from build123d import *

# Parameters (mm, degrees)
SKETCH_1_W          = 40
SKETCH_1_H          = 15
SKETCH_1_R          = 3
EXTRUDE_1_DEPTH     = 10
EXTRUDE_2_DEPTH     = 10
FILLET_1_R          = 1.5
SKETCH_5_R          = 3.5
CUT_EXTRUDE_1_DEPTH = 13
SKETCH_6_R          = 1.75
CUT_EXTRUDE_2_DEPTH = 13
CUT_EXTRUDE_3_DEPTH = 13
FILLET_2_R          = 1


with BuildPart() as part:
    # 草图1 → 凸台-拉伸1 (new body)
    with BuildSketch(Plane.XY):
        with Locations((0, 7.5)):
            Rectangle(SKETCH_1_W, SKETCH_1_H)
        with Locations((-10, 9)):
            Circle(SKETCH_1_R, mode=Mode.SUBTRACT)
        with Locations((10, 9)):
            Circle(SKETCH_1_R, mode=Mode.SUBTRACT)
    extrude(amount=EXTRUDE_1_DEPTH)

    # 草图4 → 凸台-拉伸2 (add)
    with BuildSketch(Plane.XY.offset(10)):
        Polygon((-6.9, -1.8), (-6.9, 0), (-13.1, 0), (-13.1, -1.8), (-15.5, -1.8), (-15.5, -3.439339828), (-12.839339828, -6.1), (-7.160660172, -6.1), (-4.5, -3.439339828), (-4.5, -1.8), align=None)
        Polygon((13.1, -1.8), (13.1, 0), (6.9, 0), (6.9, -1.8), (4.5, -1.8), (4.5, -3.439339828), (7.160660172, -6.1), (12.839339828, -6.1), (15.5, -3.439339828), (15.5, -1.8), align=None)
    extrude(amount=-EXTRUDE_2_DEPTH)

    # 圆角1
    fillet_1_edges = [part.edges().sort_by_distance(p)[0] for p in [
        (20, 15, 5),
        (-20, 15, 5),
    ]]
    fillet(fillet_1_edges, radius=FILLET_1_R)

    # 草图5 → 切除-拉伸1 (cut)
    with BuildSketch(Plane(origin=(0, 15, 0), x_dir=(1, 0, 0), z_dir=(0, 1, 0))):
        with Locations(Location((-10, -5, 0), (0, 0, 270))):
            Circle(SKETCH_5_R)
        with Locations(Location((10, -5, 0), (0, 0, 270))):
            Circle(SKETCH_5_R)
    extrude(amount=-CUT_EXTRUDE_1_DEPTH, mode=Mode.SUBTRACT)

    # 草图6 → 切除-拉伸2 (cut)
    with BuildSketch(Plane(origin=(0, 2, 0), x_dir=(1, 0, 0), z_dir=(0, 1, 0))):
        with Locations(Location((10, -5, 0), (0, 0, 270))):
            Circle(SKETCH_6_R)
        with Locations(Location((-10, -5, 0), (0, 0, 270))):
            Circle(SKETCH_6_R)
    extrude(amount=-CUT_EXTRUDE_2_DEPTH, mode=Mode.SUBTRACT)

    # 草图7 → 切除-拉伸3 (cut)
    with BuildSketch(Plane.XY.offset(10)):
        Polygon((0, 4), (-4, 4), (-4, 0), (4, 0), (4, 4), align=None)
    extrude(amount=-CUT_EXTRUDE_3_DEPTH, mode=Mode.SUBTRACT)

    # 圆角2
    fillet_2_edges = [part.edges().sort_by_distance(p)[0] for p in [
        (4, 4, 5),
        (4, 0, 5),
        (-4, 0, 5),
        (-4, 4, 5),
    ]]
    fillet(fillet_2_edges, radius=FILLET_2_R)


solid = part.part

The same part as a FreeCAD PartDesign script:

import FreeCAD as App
import Part
import Sketcher

V = App.Vector


def edges_at(feature, points):
    """Names of the edges that pass closest to the given points."""
    edges = feature.Shape.Edges
    near = lambda p: min(range(len(edges)), key=lambda i: edges[i].distToShape(Part.Vertex(*p))[0])
    return sorted({f"Edge{near(p) + 1}" for p in points})


def add_polygon(sketch, points):
    """Adds a closed chain of lines whose ends are joined by coincident constraints."""
    first, n = sketch.GeometryCount, len(points)
    for a, b in zip(points, points[1:] + points[:1]):
        sketch.addGeometry(Part.LineSegment(App.Vector(*a, 0), App.Vector(*b, 0)), False)
    for i in range(n):
        sketch.addConstraint(Sketcher.Constraint("Coincident", first + i, 2, first + (i + 1) % n, 1))

doc = App.newDocument("Part")
params = doc.addObject("Spreadsheet::Sheet", "Params")
for row, (alias, value) in enumerate([
    ("sketch1_diameter", "6 mm"),
    ("sketch1_width", "40 mm"),
    ("sketch1_height", "15 mm"),
    ("pad1_length", "10 mm"),
    ("sketch2_width", "6.2 mm"),
    ("sketch2_width2", "2.4 mm"),
    ("sketch2_height", "1.8 mm"),
    ("pad2_length", "10 mm"),
    ("fillet_radius", "1.5 mm"),
    ("sketch3_diameter", "7 mm"),
    ("pocket1_length", "13 mm"),
    ("sketch4_diameter", "3.5 mm"),
    ("pocket2_length", "13 mm"),
    ("sketch5_width", "8 mm"),
    ("sketch5_height", "4 mm"),
    ("pocket3_length", "13 mm"),
    ("fillet2_radius", "1 mm"),
], start=1):
    params.set(f"A{row}", alias)
    params.set(f"B{row}", "=" + value)
    params.setAlias(f"B{row}", alias)

body = doc.addObject("PartDesign::Body", "Body")

# Sketch on XY plane
sketch1 = body.newObject("Sketcher::SketchObject", "Sketch")
sketch1.AttachmentSupport = (doc.getObject("XY_Plane"), [""])
sketch1.MapMode = "FlatFace"
add_polygon(sketch1, [(-20, 15), (-20, 0), (20, 0), (20, 15)])  # lines 0-3
sketch1.addGeometry(Part.Circle(V(-10, 9, 0), V(0, 0, 1), 3), False)  # 4
sketch1.addGeometry(Part.Circle(V(10, 9, 0), V(0, 0, 1), 3), False)  # 5
sketch1.addConstraint([
    Sketcher.Constraint("Vertical", 0),
    Sketcher.Constraint("Horizontal", 1),
    Sketcher.Constraint("Vertical", 2),
    Sketcher.Constraint("Horizontal", 3),
    Sketcher.Constraint("Equal", 4, 5),
    Sketcher.Constraint("Symmetric", 0, 2, 1, 2, -1, 1),
    Sketcher.Constraint("Symmetric", 4, 3, 5, 3, -2),
    Sketcher.Constraint("Diameter", 4, 6.0),
    Sketcher.Constraint("DistanceX", 1, 1, 1, 2, 40.0),
    Sketcher.Constraint("DistanceY", 0, 2, 0, 1, 15.0),
    Sketcher.Constraint("DistanceX", 4, 3, -1, 1, 10.0),
    Sketcher.Constraint("DistanceY", -1, 1, 4, 3, 9.0),
])
sketch1.setExpression("Constraints[11]", "Params.sketch1_diameter")
sketch1.setExpression("Constraints[12]", "Params.sketch1_width")
sketch1.setExpression("Constraints[13]", "Params.sketch1_height")
pad1 = body.newObject("PartDesign::Pad", "Pad")
pad1.Profile = sketch1
pad1.setExpression("Length", "Params.pad1_length")

# Sketch on XY plane
sketch2 = body.newObject("Sketcher::SketchObject", "Sketch001")
sketch2.AttachmentSupport = (doc.getObject("XY_Plane"), [""])
sketch2.MapMode = "FlatFace"
sketch2.AttachmentOffset = App.Placement(V(0, 0, 10), App.Rotation())
add_polygon(sketch2, [(-6.9, -1.8), (-6.9, 0), (-13.1, 0), (-13.1, -1.8), (-15.5, -1.8), (-15.5, -3.4), (-12.8, -6.1), (-7.2, -6.1), (-4.5, -3.4), (-4.5, -1.8)])  # lines 0-9
add_polygon(sketch2, [(13.1, -1.8), (13.1, 0), (6.9, 0), (6.9, -1.8), (4.5, -1.8), (4.5, -3.4), (7.2, -6.1), (12.8, -6.1), (15.5, -3.4), (15.5, -1.8)])  # lines 10-19
sketch2.addConstraint([
    Sketcher.Constraint("Vertical", 0),
    Sketcher.Constraint("Horizontal", 1),
    Sketcher.Constraint("Vertical", 2),
    Sketcher.Constraint("Horizontal", 3),
    Sketcher.Constraint("Vertical", 4),
    Sketcher.Constraint("Horizontal", 6),
    Sketcher.Constraint("Vertical", 8),
    Sketcher.Constraint("Horizontal", 9),
    Sketcher.Constraint("Vertical", 10),
    Sketcher.Constraint("Horizontal", 11),
    Sketcher.Constraint("Vertical", 12),
    Sketcher.Constraint("Horizontal", 13),
    Sketcher.Constraint("Vertical", 14),
    Sketcher.Constraint("Horizontal", 16),
    Sketcher.Constraint("Vertical", 18),
    Sketcher.Constraint("Horizontal", 19),
    Sketcher.Constraint("Symmetric", 1, 2, 10, 2, -1, 1),
    Sketcher.Constraint("Symmetric", 0, 2, 11, 2, -2),
    Sketcher.Constraint("Symmetric", 8, 2, 13, 2, -2),
    Sketcher.Constraint("Symmetric", 6, 2, 15, 2, -2),
    Sketcher.Constraint("Symmetric", 4, 2, 17, 2, -2),
    Sketcher.Constraint("Perpendicular", 5, 7),
    Sketcher.Constraint("Perpendicular", 7, 15),
    Sketcher.Constraint("Perpendicular", 15, 17),
    Sketcher.Constraint("Horizontal", 4, 2, 7, 2),
    Sketcher.Constraint("Horizontal", 3, 2, 8, 2),
    Sketcher.Constraint("Horizontal", 7, 2, 14, 2),
    Sketcher.Constraint("Horizontal", 13, 2, 18, 2),
    Sketcher.Constraint("Equal", 3, 9),
    Sketcher.Constraint("DistanceX", 1, 2, 1, 1, 6.2),
    Sketcher.Constraint("DistanceX", 3, 2, 3, 1, 2.4),
    Sketcher.Constraint("DistanceY", 0, 1, 0, 2, 1.8),
    Sketcher.Constraint("DistanceX", 0, 2, 10, 2, 20.0),
    Sketcher.Constraint("DistanceY", 5, 2, -1, 1, 6.1),
    Sketcher.Constraint("DistanceX", 6, 1, 6, 2, 5.67868),
])
sketch2.setExpression("Constraints[49]", "Params.sketch2_width")
sketch2.setExpression("Constraints[50]", "Params.sketch2_width2")
sketch2.setExpression("Constraints[51]", "Params.sketch2_height")
pad2 = body.newObject("PartDesign::Pad", "Pad001")
pad2.Profile = sketch2
pad2.setExpression("Length", "Params.pad2_length")
pad2.Reversed = True
doc.recompute()

fillet = body.newObject("PartDesign::Fillet", "Fillet")
fillet.Base = (pad2, edges_at(pad2, [(20, 15, 5), (-20, 15, 5)]))
fillet.setExpression("Radius", "Params.fillet_radius")

# Sketch on XZ plane
sketch3 = body.newObject("Sketcher::SketchObject", "Sketch002")
sketch3.AttachmentSupport = (doc.getObject("XZ_Plane"), [""])
sketch3.MapMode = "FlatFace"
sketch3.AttachmentOffset = App.Placement(V(0, 0, -15), App.Rotation())
sketch3.addGeometry([
    Part.Circle(V(-10, 5, 0), V(0, 0, 1), 3.5),
    Part.Circle(V(10, 5, 0), V(0, 0, 1), 3.5),
], False)
sketch3.addConstraint([
    Sketcher.Constraint("Equal", 0, 1),
    Sketcher.Constraint("Symmetric", 0, 3, 1, 3, -2),
    Sketcher.Constraint("Diameter", 0, 7.0),
    Sketcher.Constraint("DistanceX", 0, 3, -1, 1, 10.0),
    Sketcher.Constraint("DistanceY", -1, 1, 0, 3, 5.0),
])
sketch3.setExpression("Constraints[2]", "Params.sketch3_diameter")
pocket1 = body.newObject("PartDesign::Pocket", "Pocket")
pocket1.Profile = sketch3
pocket1.setExpression("Length", "Params.pocket1_length")
pocket1.Reversed = True

# Sketch on XZ plane
sketch4 = body.newObject("Sketcher::SketchObject", "Sketch003")
sketch4.AttachmentSupport = (doc.getObject("XZ_Plane"), [""])
sketch4.MapMode = "FlatFace"
sketch4.AttachmentOffset = App.Placement(V(0, 0, -2), App.Rotation())
sketch4.addGeometry([
    Part.Circle(V(10, 5, 0), V(0, 0, 1), 1.8),
    Part.Circle(V(-10, 5, 0), V(0, 0, 1), 1.8),
], False)
sketch4.addConstraint([
    Sketcher.Constraint("Equal", 0, 1),
    Sketcher.Constraint("Symmetric", 0, 3, 1, 3, -2),
    Sketcher.Constraint("Diameter", 0, 3.5),
    Sketcher.Constraint("DistanceX", -1, 1, 0, 3, 10.0),
    Sketcher.Constraint("DistanceY", -1, 1, 0, 3, 5.0),
])
sketch4.setExpression("Constraints[2]", "Params.sketch4_diameter")
pocket2 = body.newObject("PartDesign::Pocket", "Pocket001")
pocket2.Profile = sketch4
pocket2.setExpression("Length", "Params.pocket2_length")
pocket2.Reversed = True

# Sketch on XY plane
sketch5 = body.newObject("Sketcher::SketchObject", "Sketch004")
sketch5.AttachmentSupport = (doc.getObject("XY_Plane"), [""])
sketch5.MapMode = "FlatFace"
sketch5.AttachmentOffset = App.Placement(V(0, 0, 10), App.Rotation())
add_polygon(sketch5, [(-4, 4), (-4, 0), (4, 0), (4, 4)])  # lines 0-3
sketch5.addConstraint([
    Sketcher.Constraint("Vertical", 0),
    Sketcher.Constraint("Horizontal", 1),
    Sketcher.Constraint("Vertical", 2),
    Sketcher.Constraint("Horizontal", 3),
    Sketcher.Constraint("Symmetric", 0, 2, 1, 2, -1, 1),
    Sketcher.Constraint("DistanceX", 1, 1, 1, 2, 8.0),
    Sketcher.Constraint("DistanceY", 0, 2, 0, 1, 4.0),
])
sketch5.setExpression("Constraints[9]", "Params.sketch5_width")
sketch5.setExpression("Constraints[10]", "Params.sketch5_height")
pocket3 = body.newObject("PartDesign::Pocket", "Pocket002")
pocket3.Profile = sketch5
pocket3.setExpression("Length", "Params.pocket3_length")
doc.recompute()

fillet2 = body.newObject("PartDesign::Fillet", "Fillet001")
fillet2.Base = (pocket3, edges_at(pocket3, [
    (4, 4, 5),
    (4, 0, 5),
    (-4, 0, 5),
    (-4, 4, 5),
]))
fillet2.setExpression("Radius", "Params.fillet2_radius")

doc.recompute()
